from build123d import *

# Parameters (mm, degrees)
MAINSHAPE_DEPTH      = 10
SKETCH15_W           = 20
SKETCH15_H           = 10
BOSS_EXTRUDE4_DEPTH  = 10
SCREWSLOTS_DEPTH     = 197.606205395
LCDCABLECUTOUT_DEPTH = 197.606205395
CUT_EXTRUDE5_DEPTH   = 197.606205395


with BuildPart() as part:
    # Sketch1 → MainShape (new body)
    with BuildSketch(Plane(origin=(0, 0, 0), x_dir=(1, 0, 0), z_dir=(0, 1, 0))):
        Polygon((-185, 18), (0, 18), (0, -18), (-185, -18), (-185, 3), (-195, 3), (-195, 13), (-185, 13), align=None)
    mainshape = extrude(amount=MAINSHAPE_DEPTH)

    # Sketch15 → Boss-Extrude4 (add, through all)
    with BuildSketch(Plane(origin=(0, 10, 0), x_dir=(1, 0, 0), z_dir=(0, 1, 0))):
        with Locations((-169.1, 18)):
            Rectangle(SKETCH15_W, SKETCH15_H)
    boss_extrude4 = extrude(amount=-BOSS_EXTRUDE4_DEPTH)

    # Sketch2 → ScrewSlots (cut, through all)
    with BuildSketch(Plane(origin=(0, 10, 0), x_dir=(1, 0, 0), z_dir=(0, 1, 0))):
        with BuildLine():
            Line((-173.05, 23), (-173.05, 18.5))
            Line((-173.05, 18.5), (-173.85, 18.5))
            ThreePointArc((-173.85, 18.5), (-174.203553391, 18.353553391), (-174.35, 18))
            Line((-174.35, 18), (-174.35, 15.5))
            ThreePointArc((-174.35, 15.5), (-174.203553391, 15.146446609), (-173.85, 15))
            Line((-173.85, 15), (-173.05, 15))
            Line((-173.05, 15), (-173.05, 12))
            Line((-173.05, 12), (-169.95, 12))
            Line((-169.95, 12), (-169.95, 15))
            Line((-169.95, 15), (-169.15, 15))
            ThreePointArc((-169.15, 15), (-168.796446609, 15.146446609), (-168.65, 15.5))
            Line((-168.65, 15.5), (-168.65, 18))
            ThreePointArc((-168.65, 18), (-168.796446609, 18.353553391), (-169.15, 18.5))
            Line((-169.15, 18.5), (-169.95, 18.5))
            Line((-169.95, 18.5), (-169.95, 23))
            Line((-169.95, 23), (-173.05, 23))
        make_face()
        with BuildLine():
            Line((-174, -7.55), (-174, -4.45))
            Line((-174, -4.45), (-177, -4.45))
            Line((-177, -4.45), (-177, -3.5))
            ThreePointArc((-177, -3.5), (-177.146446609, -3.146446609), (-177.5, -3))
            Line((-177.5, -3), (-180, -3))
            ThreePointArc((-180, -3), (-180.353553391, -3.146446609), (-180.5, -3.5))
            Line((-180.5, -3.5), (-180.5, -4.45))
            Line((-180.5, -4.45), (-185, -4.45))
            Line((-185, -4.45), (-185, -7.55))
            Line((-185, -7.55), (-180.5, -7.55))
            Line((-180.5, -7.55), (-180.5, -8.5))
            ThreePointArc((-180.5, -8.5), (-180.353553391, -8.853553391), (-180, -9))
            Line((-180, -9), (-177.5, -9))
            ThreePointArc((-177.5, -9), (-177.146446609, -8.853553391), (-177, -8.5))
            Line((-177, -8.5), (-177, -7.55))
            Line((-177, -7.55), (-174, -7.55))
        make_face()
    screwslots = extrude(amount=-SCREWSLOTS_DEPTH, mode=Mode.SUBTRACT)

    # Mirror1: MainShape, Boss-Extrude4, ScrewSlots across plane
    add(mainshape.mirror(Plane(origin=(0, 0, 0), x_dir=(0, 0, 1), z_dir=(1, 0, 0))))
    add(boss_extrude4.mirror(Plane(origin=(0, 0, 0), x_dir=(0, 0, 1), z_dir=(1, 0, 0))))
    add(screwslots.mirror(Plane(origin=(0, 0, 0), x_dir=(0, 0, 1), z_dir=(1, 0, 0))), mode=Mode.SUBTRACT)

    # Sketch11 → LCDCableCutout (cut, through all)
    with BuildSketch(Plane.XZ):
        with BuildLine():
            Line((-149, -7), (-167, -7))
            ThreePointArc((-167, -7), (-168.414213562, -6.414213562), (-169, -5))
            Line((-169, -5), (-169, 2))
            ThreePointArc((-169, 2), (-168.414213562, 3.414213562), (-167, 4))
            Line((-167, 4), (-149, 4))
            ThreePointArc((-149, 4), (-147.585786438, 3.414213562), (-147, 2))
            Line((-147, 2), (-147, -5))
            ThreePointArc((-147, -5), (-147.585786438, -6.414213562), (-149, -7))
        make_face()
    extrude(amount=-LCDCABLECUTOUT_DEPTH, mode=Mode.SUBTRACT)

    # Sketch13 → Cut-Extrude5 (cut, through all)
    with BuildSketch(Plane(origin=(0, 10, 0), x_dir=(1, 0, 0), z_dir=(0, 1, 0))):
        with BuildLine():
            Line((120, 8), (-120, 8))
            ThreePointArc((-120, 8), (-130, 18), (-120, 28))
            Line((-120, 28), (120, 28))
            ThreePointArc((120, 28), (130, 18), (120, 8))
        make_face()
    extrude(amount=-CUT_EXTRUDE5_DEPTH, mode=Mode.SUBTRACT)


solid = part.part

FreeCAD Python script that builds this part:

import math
import FreeCAD as App
import Part
import Sketcher

doc = App.newDocument("Part")
body = doc.addObject("PartDesign::Body", "Body")

# Sketch on XZ plane
sketch1 = body.newObject("Sketcher::SketchObject", "Sketch")
sketch1.AttachmentSupport = (doc.getObject("XZ_Plane"), [""])
sketch1.MapMode = "FlatFace"
sketch1.addGeometry(Part.LineSegment(App.Vector(0, -18, 0), App.Vector(-185, -18, 0)), False)
sketch1.addGeometry(Part.LineSegment(App.Vector(-185, -18, 0), App.Vector(-185, -13, 0)), False)
sketch1.addGeometry(Part.LineSegment(App.Vector(-185, -13, 0), App.Vector(-195, -13, 0)), False)
sketch1.addGeometry(Part.LineSegment(App.Vector(-195, -13, 0), App.Vector(-195, -3, 0)), False)
sketch1.addGeometry(Part.LineSegment(App.Vector(-195, -3, 0), App.Vector(-185, -3, 0)), False)
sketch1.addGeometry(Part.LineSegment(App.Vector(-185, -3, 0), App.Vector(-185, 18, 0)), False)
sketch1.addGeometry(Part.LineSegment(App.Vector(-185, 18, 0), App.Vector(0, 18, 0)), False)
sketch1.addGeometry(Part.LineSegment(App.Vector(0, 18, 0), App.Vector(0, -18, 0)), False)
sketch1.addConstraint(Sketcher.Constraint("Coincident", 0, 2, 1, 1))
sketch1.addConstraint(Sketcher.Constraint("Coincident", 1, 2, 2, 1))
sketch1.addConstraint(Sketcher.Constraint("Coincident", 2, 2, 3, 1))
sketch1.addConstraint(Sketcher.Constraint("Coincident", 3, 2, 4, 1))
sketch1.addConstraint(Sketcher.Constraint("Coincident", 4, 2, 5, 1))
sketch1.addConstraint(Sketcher.Constraint("Coincident", 5, 2, 6, 1))
sketch1.addConstraint(Sketcher.Constraint("Coincident", 6, 2, 7, 1))
sketch1.addConstraint(Sketcher.Constraint("Coincident", 7, 2, 0, 1))
sketch1.addConstraint(Sketcher.Constraint("Horizontal", 0))
sketch1.addConstraint(Sketcher.Constraint("Vertical", 1))
sketch1.addConstraint(Sketcher.Constraint("Horizontal", 2))
sketch1.addConstraint(Sketcher.Constraint("Vertical", 3))
sketch1.addConstraint(Sketcher.Constraint("Horizontal", 4))
sketch1.addConstraint(Sketcher.Constraint("Vertical", 5))
sketch1.addConstraint(Sketcher.Constraint("Horizontal", 6))
sketch1.addConstraint(Sketcher.Constraint("Vertical", 7))
sketch1.addConstraint(Sketcher.Constraint("Symmetric", 6, 2, 7, 2, -1, 1))
sketch1.addConstraint(Sketcher.Constraint("Vertical", 1, 2, 4, 2))
sketch1.addConstraint(Sketcher.Constraint("Equal", 4, 3))
sketch1.addConstraint(Sketcher.Constraint("DistanceX", 0, 2, 0, 1, 185.0))
sketch1.addConstraint(Sketcher.Constraint("DistanceX", 2, 2, 2, 1, 10.0))
sketch1.addConstraint(Sketcher.Constraint("DistanceY", 1, 1, 1, 2, 5.0))
sketch1.addConstraint(Sketcher.Constraint("DistanceY", 5, 1, 5, 2, 21.0))
pad1 = body.newObject("PartDesign::Pad", "Pad")
pad1.Profile = sketch1
pad1.Length = 10
pad1.Reversed = True

# Sketch on XZ plane
sketch2 = body.newObject("Sketcher::SketchObject", "Sketch001")
sketch2.AttachmentSupport = (doc.getObject("XZ_Plane"), [""])
sketch2.MapMode = "FlatFace"
sketch2.AttachmentOffset = App.Placement(App.Vector(0, 0, -10), App.Rotation())
sketch2.addGeometry(Part.LineSegment(App.Vector(-179, -23, 0), App.Vector(-179, -13, 0)), False)
sketch2.addGeometry(Part.LineSegment(App.Vector(-179, -13, 0), App.Vector(-159, -13, 0)), False)
sketch2.addGeometry(Part.LineSegment(App.Vector(-159, -13, 0), App.Vector(-159, -23, 0)), False)
sketch2.addGeometry(Part.LineSegment(App.Vector(-159, -23, 0), App.Vector(-179, -23, 0)), False)
sketch2.addConstraint(Sketcher.Constraint("Coincident", 0, 2, 1, 1))
sketch2.addConstraint(Sketcher.Constraint("Coincident", 1, 2, 2, 1))
sketch2.addConstraint(Sketcher.Constraint("Coincident", 2, 2, 3, 1))
sketch2.addConstraint(Sketcher.Constraint("Coincident", 3, 2, 0, 1))
sketch2.addConstraint(Sketcher.Constraint("Vertical", 0))
sketch2.addConstraint(Sketcher.Constraint("Horizontal", 1))
sketch2.addConstraint(Sketcher.Constraint("Vertical", 2))
sketch2.addConstraint(Sketcher.Constraint("Horizontal", 3))
sketch2.addConstraint(Sketcher.Constraint("DistanceX", 1, 1, 1, 2, 20.0))
sketch2.addConstraint(Sketcher.Constraint("DistanceY", 0, 1, 0, 2, 10.0))
sketch2.addConstraint(Sketcher.Constraint("DistanceY", 0, 2, -1, 1, 13.0))
sketch2.addConstraint(Sketcher.Constraint("DistanceX", 0, 2, -1, 1, 179.1))
pad2 = body.newObject("PartDesign::Pad", "Pad001")
pad2.Profile = sketch2
pad2.Type = "UpToLast"

# Sketch on XZ plane
sketch3 = body.newObject("Sketcher::SketchObject", "Sketch002")
sketch3.AttachmentSupport = (doc.getObject("XZ_Plane"), [""])
sketch3.MapMode = "FlatFace"
sketch3.AttachmentOffset = App.Placement(App.Vector(0, 0, -10), App.Rotation())
sketch3.addGeometry(Part.LineSegment(App.Vector(-173.05, -23, 0), App.Vector(-173.05, -18.5, 0)), False)
sketch3.addGeometry(Part.LineSegment(App.Vector(-173.05, -18.5, 0), App.Vector(-173.85, -18.5, 0)), False)
sketch3.addGeometry(Part.ArcOfCircle(Part.Circle(App.Vector(-173.85, -18, 0), App.Vector(0, 0, 1), 0.5), math.radians(180), math.radians(270)), False)
sketch3.addGeometry(Part.LineSegment(App.Vector(-174.35, -18, 0), App.Vector(-174.35, -15.5, 0)), False)
sketch3.addGeometry(Part.ArcOfCircle(Part.Circle(App.Vector(-173.85, -15.5, 0), App.Vector(0, 0, 1), 0.5), math.radians(90), math.radians(180)), False)
sketch3.addGeometry(Part.LineSegment(App.Vector(-173.85, -15, 0), App.Vector(-173.05, -15, 0)), False)
sketch3.addGeometry(Part.LineSegment(App.Vector(-173.05, -15, 0), App.Vector(-173.05, -12, 0)), False)
sketch3.addGeometry(Part.LineSegment(App.Vector(-173.05, -12, 0), App.Vector(-169.95, -12, 0)), False)
sketch3.addGeometry(Part.LineSegment(App.Vector(-169.95, -12, 0), App.Vector(-169.95, -15, 0)), False)
sketch3.addGeometry(Part.LineSegment(App.Vector(-169.95, -15, 0), App.Vector(-169.15, -15, 0)), False)
sketch3.addGeometry(Part.ArcOfCircle(Part.Circle(App.Vector(-169.15, -15.5, 0), App.Vector(0, 0, 1), 0.5), math.radians(0), math.radians(90)), False)
sketch3.addGeometry(Part.LineSegment(App.Vector(-168.65, -15.5, 0), App.Vector(-168.65, -18, 0)), False)
sketch3.addGeometry(Part.ArcOfCircle(Part.Circle(App.Vector(-169.15, -18, 0), App.Vector(0, 0, 1), 0.5), math.radians(-90), math.radians(0)), False)
sketch3.addGeometry(Part.LineSegment(App.Vector(-169.15, -18.5, 0), App.Vector(-169.95, -18.5, 0)), False)
sketch3.addGeometry(Part.LineSegment(App.Vector(-169.95, -18.5, 0), App.Vector(-169.95, -23, 0)), False)
sketch3.addGeometry(Part.LineSegment(App.Vector(-169.95, -23, 0), App.Vector(-173.05, -23, 0)), False)
sketch3.addGeometry(Part.LineSegment(App.Vector(-174, 7.55, 0), App.Vector(-174, 4.45, 0)), False)
sketch3.addGeometry(Part.LineSegment(App.Vector(-174, 4.45, 0), App.Vector(-177, 4.45, 0)), False)
sketch3.addGeometry(Part.LineSegment(App.Vector(-177, 4.45, 0), App.Vector(-177, 3.5, 0)), False)
sketch3.addGeometry(Part.ArcOfCircle(Part.Circle(App.Vector(-177.5, 3.5, 0), App.Vector(0, 0, 1), 0.5), math.radians(-90), math.radians(0)), False)
sketch3.addGeometry(Part.LineSegment(App.Vector(-177.5, 3, 0), App.Vector(-180, 3, 0)), False)
sketch3.addGeometry(Part.ArcOfCircle(Part.Circle(App.Vector(-180, 3.5, 0), App.Vector(0, 0, 1), 0.5), math.radians(180), math.radians(270)), False)
sketch3.addGeometry(Part.LineSegment(App.Vector(-180.5, 3.5, 0), App.Vector(-180.5, 4.45, 0)), False)
sketch3.addGeometry(Part.LineSegment(App.Vector(-180.5, 4.45, 0), App.Vector(-185, 4.45, 0)), False)
sketch3.addGeometry(Part.LineSegment(App.Vector(-185, 4.45, 0), App.Vector(-185, 7.55, 0)), False)
sketch3.addGeometry(Part.LineSegment(App.Vector(-185, 7.55, 0), App.Vector(-180.5, 7.55, 0)), False)
sketch3.addGeometry(Part.LineSegment(App.Vector(-180.5, 7.55, 0), App.Vector(-180.5, 8.5, 0)), False)
sketch3.addGeometry(Part.ArcOfCircle(Part.Circle(App.Vector(-180, 8.5, 0), App.Vector(0, 0, 1), 0.5), math.radians(90), math.radians(180)), False)
sketch3.addGeometry(Part.LineSegment(App.Vector(-180, 9, 0), App.Vector(-177.5, 9, 0)), False)
sketch3.addGeometry(Part.ArcOfCircle(Part.Circle(App.Vector(-177.5, 8.5, 0), App.Vector(0, 0, 1), 0.5), math.radians(0), math.radians(90)), False)
sketch3.addGeometry(Part.LineSegment(App.Vector(-177, 8.5, 0), App.Vector(-177, 7.55, 0)), False)
sketch3.addGeometry(Part.LineSegment(App.Vector(-177, 7.55, 0), App.Vector(-174, 7.55, 0)), False)
sketch3.addConstraint(Sketcher.Constraint("Coincident", 0, 2, 1, 1))
sketch3.addConstraint(Sketcher.Constraint("Tangent", 1, 2, 2, 2))
sketch3.addConstraint(Sketcher.Constraint("Tangent", 2, 1, 3, 1))
sketch3.addConstraint(Sketcher.Constraint("Tangent", 3, 2, 4, 2))
sketch3.addConstraint(Sketcher.Constraint("Tangent", 4, 1, 5, 1))
sketch3.addConstraint(Sketcher.Constraint("Coincident", 5, 2, 6, 1))
sketch3.addConstraint(Sketcher.Constraint("Coincident", 6, 2, 7, 1))
sketch3.addConstraint(Sketcher.Constraint("Coincident", 7, 2, 8, 1))
sketch3.addConstraint(Sketcher.Constraint("Coincident", 8, 2, 9, 1))
sketch3.addConstraint(Sketcher.Constraint("Tangent", 9, 2, 10, 2))
sketch3.addConstraint(Sketcher.Constraint("Tangent", 10, 1, 11, 1))
sketch3.addConstraint(Sketcher.Constraint("Tangent", 11, 2, 12, 2))
sketch3.addConstraint(Sketcher.Constraint("Tangent", 12, 1, 13, 1))
sketch3.addConstraint(Sketcher.Constraint("Coincident", 13, 2, 14, 1))
sketch3.addConstraint(Sketcher.Constraint("Coincident", 14, 2, 15, 1))
sketch3.addConstraint(Sketcher.Constraint("Coincident", 15, 2, 0, 1))
sketch3.addConstraint(Sketcher.Constraint("Coincident", 16, 2, 17, 1))
sketch3.addConstraint(Sketcher.Constraint("Coincident", 17, 2, 18, 1))
sketch3.addConstraint(Sketcher.Constraint("Tangent", 18, 2, 19, 2))
sketch3.addConstraint(Sketcher.Constraint("Tangent", 19, 1, 20, 1))
sketch3.addConstraint(Sketcher.Constraint("Tangent", 20, 2, 21, 2))
sketch3.addConstraint(Sketcher.Constraint("Tangent", 21, 1, 22, 1))
sketch3.addConstraint(Sketcher.Constraint("Coincident", 22, 2, 23, 1))
sketch3.addConstraint(Sketcher.Constraint("Coincident", 23, 2, 24, 1))
sketch3.addConstraint(Sketcher.Constraint("Coincident", 24, 2, 25, 1))
sketch3.addConstraint(Sketcher.Constraint("Coincident", 25, 2, 26, 1))
sketch3.addConstraint(Sketcher.Constraint("Tangent", 26, 2, 27, 2))
sketch3.addConstraint(Sketcher.Constraint("Tangent", 27, 1, 28, 1))
sketch3.addConstraint(Sketcher.Constraint("Tangent", 28, 2, 29, 2))
sketch3.addConstraint(Sketcher.Constraint("Tangent", 29, 1, 30, 1))
sketch3.addConstraint(Sketcher.Constraint("Coincident", 30, 2, 31, 1))
sketch3.addConstraint(Sketcher.Constraint("Coincident", 31, 2, 16, 1))
sketch3.addConstraint(Sketcher.Constraint("Vertical", 0))
sketch3.addConstraint(Sketcher.Constraint("Horizontal", 1))
sketch3.addConstraint(Sketcher.Constraint("Vertical", 3))
sketch3.addConstraint(Sketcher.Constraint("Horizontal", 5))
sketch3.addConstraint(Sketcher.Constraint("Vertical", 6))
sketch3.addConstraint(Sketcher.Constraint("Horizontal", 7))
sketch3.addConstraint(Sketcher.Constraint("Vertical", 8))
sketch3.addConstraint(Sketcher.Constraint("Horizontal", 9))
sketch3.addConstraint(Sketcher.Constraint("Vertical", 11))
sketch3.addConstraint(Sketcher.Constraint("Horizontal", 13))
sketch3.addConstraint(Sketcher.Constraint("Vertical", 14))
sketch3.addConstraint(Sketcher.Constraint("Horizontal", 15))
sketch3.addConstraint(Sketcher.Constraint("Vertical", 16))
sketch3.addConstraint(Sketcher.Constraint("Horizontal", 17))
sketch3.addConstraint(Sketcher.Constraint("Vertical", 18))
sketch3.addConstraint(Sketcher.Constraint("Horizontal", 20))
sketch3.addConstraint(Sketcher.Constraint("Vertical", 22))
sketch3.addConstraint(Sketcher.Constraint("Horizontal", 23))
sketch3.addConstraint(Sketcher.Constraint("Vertical", 24))
sketch3.addConstraint(Sketcher.Constraint("Horizontal", 25))
sketch3.addConstraint(Sketcher.Constraint("Vertical", 26))
sketch3.addConstraint(Sketcher.Constraint("Horizontal", 28))
sketch3.addConstraint(Sketcher.Constraint("Vertical", 30))
sketch3.addConstraint(Sketcher.Constraint("Horizontal", 31))
sketch3.addConstraint(Sketcher.Constraint("Equal", 2, 4))
sketch3.addConstraint(Sketcher.Constraint("Equal", 4, 10))
sketch3.addConstraint(Sketcher.Constraint("Equal", 10, 12))
sketch3.addConstraint(Sketcher.Constraint("Equal", 12, 19))
sketch3.addConstraint(Sketcher.Constraint("Equal", 19, 21))
sketch3.addConstraint(Sketcher.Constraint("Equal", 21, 27))
sketch3.addConstraint(Sketcher.Constraint("Equal", 27, 29))
sketch3.addConstraint(Sketcher.Constraint("Horizontal", 4, 3, 10, 3))
sketch3.addConstraint(Sketcher.Constraint("Horizontal", 2, 3, 12, 3))
sketch3.addConstraint(Sketcher.Constraint("Horizontal", 17, 2, 22, 2))
sketch3.addConstraint(Sketcher.Constraint("Horizontal", 25, 2, 30, 2))
sketch3.addConstraint(Sketcher.Constraint("Vertical", 21, 3, 27, 3))
sketch3.addConstraint(Sketcher.Constraint("Vertical", 19, 3, 29, 3))
sketch3.addConstraint(Sketcher.Constraint("Vertical", 0, 2, 5, 2))
sketch3.addConstraint(Sketcher.Constraint("Vertical", 8, 2, 13, 2))
sketch3.addConstraint(Sketcher.Constraint("Equal", 5, 9))
sketch3.addConstraint(Sketcher.Constraint("Equal", 25, 0))
sketch3.addConstraint(Sketcher.Constraint("Equal", 28, 3))
sketch3.addConstraint(Sketcher.Constraint("Equal", 31, 6))
sketch3.addConstraint(Sketcher.Constraint("Equal", 15, 16))
sketch3.addConstraint(Sketcher.Constraint("Equal", 22, 26))
sketch3.addConstraint(Sketcher.Constraint("Radius", 2, 0.5))
sketch3.addConstraint(Sketcher.Constraint("DistanceX", 17, 2, 17, 1, 3.0))
sketch3.addConstraint(Sketcher.Constraint("DistanceX", 1, 2, 1, 1, 0.8))
sketch3.addConstraint(Sketcher.Constraint("DistanceX", 7, 1, 7, 2, 3.1))
sketch3.addConstraint(Sketcher.Constraint("DistanceX", 20, 2, 20, 1, 2.5))
sketch3.addConstraint(Sketcher.Constraint("DistanceX", 23, 2, 23, 1, 4.5))
sketch3.addConstraint(Sketcher.Constraint("DistanceY", 2, 3, -1, 1, 18.0))
sketch3.addConstraint(Sketcher.Constraint("DistanceX", 21, 3, -1, 1, 180.0))
sketch3.addConstraint(Sketcher.Constraint("DistanceY", -1, 1, 19, 1, 3.0))
sketch3.addConstraint(Sketcher.Constraint("DistanceY", -1, 1, 27, 1, 9.0))
sketch3.addConstraint(Sketcher.Constraint("DistanceX", 2, 3, -1, 1, 173.85))
pocket1 = body.newObject("PartDesign::Pocket", "Pocket")
pocket1.Profile = sketch3
pocket1.Type = "ThroughAll"
pocket1.Reversed = True
doc.recompute()

mirrored = body.newObject("PartDesign::Mirrored", "Mirrored")
mirrored.Originals = [pad1, pad2, pocket1]
mirrored.MirrorPlane = (doc.getObject("YZ_Plane"), [""])
body.Tip = mirrored

# Sketch on XZ plane
sketch4 = body.newObject("Sketcher::SketchObject", "Sketch003")
sketch4.AttachmentSupport = (doc.getObject("XZ_Plane"), [""])
sketch4.MapMode = "FlatFace"
sketch4.addGeometry(Part.LineSegment(App.Vector(-167, -7, 0), App.Vector(-149, -7, 0)), False)
sketch4.addGeometry(Part.ArcOfCircle(Part.Circle(App.Vector(-149, -5, 0), App.Vector(0, 0, 1), 2), math.radians(-90), math.radians(0)), False)
sketch4.addGeometry(Part.LineSegment(App.Vector(-147, -5, 0), App.Vector(-147, 2, 0)), False)
sketch4.addGeometry(Part.ArcOfCircle(Part.Circle(App.Vector(-149, 2, 0), App.Vector(0, 0, 1), 2), math.radians(0), math.radians(90)), False)
sketch4.addGeometry(Part.LineSegment(App.Vector(-149, 4, 0), App.Vector(-167, 4, 0)), False)
sketch4.addGeometry(Part.ArcOfCircle(Part.Circle(App.Vector(-167, 2, 0), App.Vector(0, 0, 1), 2), math.radians(90), math.radians(180)), False)
sketch4.addGeometry(Part.LineSegment(App.Vector(-169, 2, 0), App.Vector(-169, -5, 0)), False)
sketch4.addGeometry(Part.ArcOfCircle(Part.Circle(App.Vector(-167, -5, 0), App.Vector(0, 0, 1), 2), math.radians(-180), math.radians(-90)), False)
sketch4.addConstraint(Sketcher.Constraint("Tangent", 0, 2, 1, 1))
sketch4.addConstraint(Sketcher.Constraint("Tangent", 1, 2, 2, 1))
sketch4.addConstraint(Sketcher.Constraint("Tangent", 2, 2, 3, 1))
sketch4.addConstraint(Sketcher.Constraint("Tangent", 3, 2, 4, 1))
sketch4.addConstraint(Sketcher.Constraint("Tangent", 4, 2, 5, 1))
sketch4.addConstraint(Sketcher.Constraint("Tangent", 5, 2, 6, 1))
sketch4.addConstraint(Sketcher.Constraint("Tangent", 6, 2, 7, 1))
sketch4.addConstraint(Sketcher.Constraint("Tangent", 7, 2, 0, 1))
sketch4.addConstraint(Sketcher.Constraint("Horizontal", 0))
sketch4.addConstraint(Sketcher.Constraint("Vertical", 2))
sketch4.addConstraint(Sketcher.Constraint("Horizontal", 4))
sketch4.addConstraint(Sketcher.Constraint("Vertical", 6))
sketch4.addConstraint(Sketcher.Constraint("Equal", 1, 3))
sketch4.addConstraint(Sketcher.Constraint("Equal", 3, 5))
sketch4.addConstraint(Sketcher.Constraint("Equal", 5, 7))
sketch4.addConstraint(Sketcher.Constraint("Radius", 1, 2.0))
sketch4.addConstraint(Sketcher.Constraint("DistanceX", 0, 1, 0, 2, 18.0))
sketch4.addConstraint(Sketcher.Constraint("DistanceY", 2, 1, 2, 2, 7.0))
sketch4.addConstraint(Sketcher.Constraint("DistanceX", 1, 3, -1, 1, 149.0))
sketch4.addConstraint(Sketcher.Constraint("DistanceY", 1, 3, -1, 1, 5.0))
pocket2 = body.newObject("PartDesign::Pocket", "Pocket001")
pocket2.Profile = sketch4
pocket2.Type = "ThroughAll"

# Sketch on XZ plane
sketch5 = body.newObject("Sketcher::SketchObject", "Sketch004")
sketch5.AttachmentSupport = (doc.getObject("XZ_Plane"), [""])
sketch5.MapMode = "FlatFace"
sketch5.AttachmentOffset = App.Placement(App.Vector(0, 0, -10), App.Rotation())
sketch5.addGeometry(Part.LineSegment(App.Vector(-120, -8, 0), App.Vector(120, -8, 0)), False)
sketch5.addGeometry(Part.ArcOfCircle(Part.Circle(App.Vector(120, -18, 0), App.Vector(0, 0, 1), 10), math.radians(-90), math.radians(90)), False)
sketch5.addGeometry(Part.LineSegment(App.Vector(120, -28, 0), App.Vector(-120, -28, 0)), False)
sketch5.addGeometry(Part.ArcOfCircle(Part.Circle(App.Vector(-120, -18, 0), App.Vector(0, 0, 1), 10), math.radians(90), math.radians(270)), False)
sketch5.addConstraint(Sketcher.Constraint("Tangent", 0, 2, 1, 2))
sketch5.addConstraint(Sketcher.Constraint("Tangent", 1, 1, 2, 1))
sketch5.addConstraint(Sketcher.Constraint("Tangent", 2, 2, 3, 2))
sketch5.addConstraint(Sketcher.Constraint("Tangent", 3, 1, 0, 1))
sketch5.addConstraint(Sketcher.Constraint("Horizontal", 0))
sketch5.addConstraint(Sketcher.Constraint("Horizontal", 2))
sketch5.addConstraint(Sketcher.Constraint("Radius", 1, 10.0))
sketch5.addConstraint(Sketcher.Constraint("DistanceX", 0, 1, 0, 2, 240.0))
sketch5.addConstraint(Sketcher.Constraint("DistanceX", -1, 1, 1, 3, 120.0))
sketch5.addConstraint(Sketcher.Constraint("DistanceY", 1, 3, -1, 1, 18.0))
pocket3 = body.newObject("PartDesign::Pocket", "Pocket002")
pocket3.Profile = sketch5
pocket3.Type = "ThroughAll"
pocket3.Reversed = True

doc.recompute()
